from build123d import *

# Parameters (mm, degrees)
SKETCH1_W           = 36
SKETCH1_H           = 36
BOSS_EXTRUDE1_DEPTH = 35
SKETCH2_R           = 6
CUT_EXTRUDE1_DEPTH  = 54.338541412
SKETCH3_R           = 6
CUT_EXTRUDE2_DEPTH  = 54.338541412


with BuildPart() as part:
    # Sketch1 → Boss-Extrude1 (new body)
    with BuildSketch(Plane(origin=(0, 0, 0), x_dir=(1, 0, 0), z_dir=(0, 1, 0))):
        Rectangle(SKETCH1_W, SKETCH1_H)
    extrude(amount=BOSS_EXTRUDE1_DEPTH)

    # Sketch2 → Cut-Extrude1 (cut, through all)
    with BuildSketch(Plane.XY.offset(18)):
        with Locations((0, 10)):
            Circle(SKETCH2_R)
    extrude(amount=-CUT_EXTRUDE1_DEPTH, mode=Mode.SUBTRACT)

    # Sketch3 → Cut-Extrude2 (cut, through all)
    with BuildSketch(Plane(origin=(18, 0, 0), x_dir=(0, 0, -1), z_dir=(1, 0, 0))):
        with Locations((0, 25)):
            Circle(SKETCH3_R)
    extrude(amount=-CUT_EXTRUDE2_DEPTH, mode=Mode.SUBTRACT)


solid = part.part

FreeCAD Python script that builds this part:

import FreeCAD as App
import Part
import Sketcher
from FreeCAD import Vector

doc = App.newDocument("Part")
body = doc.addObject("PartDesign::Body", "Body")

# Sketch on XZ plane
sketch1 = body.newObject("Sketcher::SketchObject", "Sketch")
sketch1.AttachmentSupport = (doc.getObject("XZ_Plane"), [""])
sketch1.MapMode = "FlatFace"
sketch1.addGeometry([
    Part.LineSegment(Vector(-18, -18, 0), Vector(-18, 18, 0)),
    Part.LineSegment(Vector(-18, 18, 0), Vector(18, 18, 0)),
    Part.LineSegment(Vector(18, 18, 0), Vector(18, -18, 0)),
    Part.LineSegment(Vector(18, -18, 0), Vector(-18, -18, 0)),
], False)
sketch1.addConstraint([
    Sketcher.Constraint("Coincident", 0, 2, 1, 1),
    Sketcher.Constraint("Coincident", 1, 2, 2, 1),
    Sketcher.Constraint("Coincident", 2, 2, 3, 1),
    Sketcher.Constraint("Coincident", 3, 2, 0, 1),
    Sketcher.Constraint("Vertical", 0),
    Sketcher.Constraint("Horizontal", 1),
    Sketcher.Constraint("Vertical", 2),
    Sketcher.Constraint("Horizontal", 3),
    Sketcher.Constraint("Symmetric", 0, 2, 2, 2, -1, 1),
    Sketcher.Constraint("Equal", 3, 0),
    Sketcher.Constraint("DistanceX", 1, 1, 1, 2, 36.0),
])
pad1 = body.newObject("PartDesign::Pad", "Pad")
pad1.Profile = sketch1
pad1.Length = 35
pad1.Reversed = True

# Sketch on XY plane
sketch2 = body.newObject("Sketcher::SketchObject", "Sketch001")
sketch2.AttachmentSupport = (doc.getObject("XY_Plane"), [""])
sketch2.MapMode = "FlatFace"
sketch2.AttachmentOffset = App.Placement(Vector(0, 0, 18), App.Rotation())
sketch2.addGeometry(Part.Circle(Vector(0, 10, 0), Vector(0, 0, 1), 6), False)
sketch2.addConstraint([
    Sketcher.Constraint("PointOnObject", 0, 3, -2),
    Sketcher.Constraint("Diameter", 0, 12.0),
    Sketcher.Constraint("DistanceY", -1, 1, 0, 3, 10.0),
])
pocket1 = body.newObject("PartDesign::Pocket", "Pocket")
pocket1.Profile = sketch2
pocket1.Type = "ThroughAll"

# Sketch on YZ plane
sketch3 = body.newObject("Sketcher::SketchObject", "Sketch002")
sketch3.AttachmentSupport = (doc.getObject("YZ_Plane"), [""])
sketch3.MapMode = "FlatFace"
sketch3.AttachmentOffset = App.Placement(Vector(0, 0, 18), App.Rotation())
sketch3.addGeometry(Part.Circle(Vector(25, 0, 0), Vector(0, 0, 1), 6), False)
sketch3.addConstraint([
    Sketcher.Constraint("PointOnObject", 0, 3, -1),
    Sketcher.Constraint("Diameter", 0, 12.0),
    Sketcher.Constraint("DistanceX", -1, 1, 0, 3, 25.0),
])
pocket2 = body.newObject("PartDesign::Pocket", "Pocket001")
pocket2.Profile = sketch3
pocket2.Type = "ThroughAll"

doc.recompute()
